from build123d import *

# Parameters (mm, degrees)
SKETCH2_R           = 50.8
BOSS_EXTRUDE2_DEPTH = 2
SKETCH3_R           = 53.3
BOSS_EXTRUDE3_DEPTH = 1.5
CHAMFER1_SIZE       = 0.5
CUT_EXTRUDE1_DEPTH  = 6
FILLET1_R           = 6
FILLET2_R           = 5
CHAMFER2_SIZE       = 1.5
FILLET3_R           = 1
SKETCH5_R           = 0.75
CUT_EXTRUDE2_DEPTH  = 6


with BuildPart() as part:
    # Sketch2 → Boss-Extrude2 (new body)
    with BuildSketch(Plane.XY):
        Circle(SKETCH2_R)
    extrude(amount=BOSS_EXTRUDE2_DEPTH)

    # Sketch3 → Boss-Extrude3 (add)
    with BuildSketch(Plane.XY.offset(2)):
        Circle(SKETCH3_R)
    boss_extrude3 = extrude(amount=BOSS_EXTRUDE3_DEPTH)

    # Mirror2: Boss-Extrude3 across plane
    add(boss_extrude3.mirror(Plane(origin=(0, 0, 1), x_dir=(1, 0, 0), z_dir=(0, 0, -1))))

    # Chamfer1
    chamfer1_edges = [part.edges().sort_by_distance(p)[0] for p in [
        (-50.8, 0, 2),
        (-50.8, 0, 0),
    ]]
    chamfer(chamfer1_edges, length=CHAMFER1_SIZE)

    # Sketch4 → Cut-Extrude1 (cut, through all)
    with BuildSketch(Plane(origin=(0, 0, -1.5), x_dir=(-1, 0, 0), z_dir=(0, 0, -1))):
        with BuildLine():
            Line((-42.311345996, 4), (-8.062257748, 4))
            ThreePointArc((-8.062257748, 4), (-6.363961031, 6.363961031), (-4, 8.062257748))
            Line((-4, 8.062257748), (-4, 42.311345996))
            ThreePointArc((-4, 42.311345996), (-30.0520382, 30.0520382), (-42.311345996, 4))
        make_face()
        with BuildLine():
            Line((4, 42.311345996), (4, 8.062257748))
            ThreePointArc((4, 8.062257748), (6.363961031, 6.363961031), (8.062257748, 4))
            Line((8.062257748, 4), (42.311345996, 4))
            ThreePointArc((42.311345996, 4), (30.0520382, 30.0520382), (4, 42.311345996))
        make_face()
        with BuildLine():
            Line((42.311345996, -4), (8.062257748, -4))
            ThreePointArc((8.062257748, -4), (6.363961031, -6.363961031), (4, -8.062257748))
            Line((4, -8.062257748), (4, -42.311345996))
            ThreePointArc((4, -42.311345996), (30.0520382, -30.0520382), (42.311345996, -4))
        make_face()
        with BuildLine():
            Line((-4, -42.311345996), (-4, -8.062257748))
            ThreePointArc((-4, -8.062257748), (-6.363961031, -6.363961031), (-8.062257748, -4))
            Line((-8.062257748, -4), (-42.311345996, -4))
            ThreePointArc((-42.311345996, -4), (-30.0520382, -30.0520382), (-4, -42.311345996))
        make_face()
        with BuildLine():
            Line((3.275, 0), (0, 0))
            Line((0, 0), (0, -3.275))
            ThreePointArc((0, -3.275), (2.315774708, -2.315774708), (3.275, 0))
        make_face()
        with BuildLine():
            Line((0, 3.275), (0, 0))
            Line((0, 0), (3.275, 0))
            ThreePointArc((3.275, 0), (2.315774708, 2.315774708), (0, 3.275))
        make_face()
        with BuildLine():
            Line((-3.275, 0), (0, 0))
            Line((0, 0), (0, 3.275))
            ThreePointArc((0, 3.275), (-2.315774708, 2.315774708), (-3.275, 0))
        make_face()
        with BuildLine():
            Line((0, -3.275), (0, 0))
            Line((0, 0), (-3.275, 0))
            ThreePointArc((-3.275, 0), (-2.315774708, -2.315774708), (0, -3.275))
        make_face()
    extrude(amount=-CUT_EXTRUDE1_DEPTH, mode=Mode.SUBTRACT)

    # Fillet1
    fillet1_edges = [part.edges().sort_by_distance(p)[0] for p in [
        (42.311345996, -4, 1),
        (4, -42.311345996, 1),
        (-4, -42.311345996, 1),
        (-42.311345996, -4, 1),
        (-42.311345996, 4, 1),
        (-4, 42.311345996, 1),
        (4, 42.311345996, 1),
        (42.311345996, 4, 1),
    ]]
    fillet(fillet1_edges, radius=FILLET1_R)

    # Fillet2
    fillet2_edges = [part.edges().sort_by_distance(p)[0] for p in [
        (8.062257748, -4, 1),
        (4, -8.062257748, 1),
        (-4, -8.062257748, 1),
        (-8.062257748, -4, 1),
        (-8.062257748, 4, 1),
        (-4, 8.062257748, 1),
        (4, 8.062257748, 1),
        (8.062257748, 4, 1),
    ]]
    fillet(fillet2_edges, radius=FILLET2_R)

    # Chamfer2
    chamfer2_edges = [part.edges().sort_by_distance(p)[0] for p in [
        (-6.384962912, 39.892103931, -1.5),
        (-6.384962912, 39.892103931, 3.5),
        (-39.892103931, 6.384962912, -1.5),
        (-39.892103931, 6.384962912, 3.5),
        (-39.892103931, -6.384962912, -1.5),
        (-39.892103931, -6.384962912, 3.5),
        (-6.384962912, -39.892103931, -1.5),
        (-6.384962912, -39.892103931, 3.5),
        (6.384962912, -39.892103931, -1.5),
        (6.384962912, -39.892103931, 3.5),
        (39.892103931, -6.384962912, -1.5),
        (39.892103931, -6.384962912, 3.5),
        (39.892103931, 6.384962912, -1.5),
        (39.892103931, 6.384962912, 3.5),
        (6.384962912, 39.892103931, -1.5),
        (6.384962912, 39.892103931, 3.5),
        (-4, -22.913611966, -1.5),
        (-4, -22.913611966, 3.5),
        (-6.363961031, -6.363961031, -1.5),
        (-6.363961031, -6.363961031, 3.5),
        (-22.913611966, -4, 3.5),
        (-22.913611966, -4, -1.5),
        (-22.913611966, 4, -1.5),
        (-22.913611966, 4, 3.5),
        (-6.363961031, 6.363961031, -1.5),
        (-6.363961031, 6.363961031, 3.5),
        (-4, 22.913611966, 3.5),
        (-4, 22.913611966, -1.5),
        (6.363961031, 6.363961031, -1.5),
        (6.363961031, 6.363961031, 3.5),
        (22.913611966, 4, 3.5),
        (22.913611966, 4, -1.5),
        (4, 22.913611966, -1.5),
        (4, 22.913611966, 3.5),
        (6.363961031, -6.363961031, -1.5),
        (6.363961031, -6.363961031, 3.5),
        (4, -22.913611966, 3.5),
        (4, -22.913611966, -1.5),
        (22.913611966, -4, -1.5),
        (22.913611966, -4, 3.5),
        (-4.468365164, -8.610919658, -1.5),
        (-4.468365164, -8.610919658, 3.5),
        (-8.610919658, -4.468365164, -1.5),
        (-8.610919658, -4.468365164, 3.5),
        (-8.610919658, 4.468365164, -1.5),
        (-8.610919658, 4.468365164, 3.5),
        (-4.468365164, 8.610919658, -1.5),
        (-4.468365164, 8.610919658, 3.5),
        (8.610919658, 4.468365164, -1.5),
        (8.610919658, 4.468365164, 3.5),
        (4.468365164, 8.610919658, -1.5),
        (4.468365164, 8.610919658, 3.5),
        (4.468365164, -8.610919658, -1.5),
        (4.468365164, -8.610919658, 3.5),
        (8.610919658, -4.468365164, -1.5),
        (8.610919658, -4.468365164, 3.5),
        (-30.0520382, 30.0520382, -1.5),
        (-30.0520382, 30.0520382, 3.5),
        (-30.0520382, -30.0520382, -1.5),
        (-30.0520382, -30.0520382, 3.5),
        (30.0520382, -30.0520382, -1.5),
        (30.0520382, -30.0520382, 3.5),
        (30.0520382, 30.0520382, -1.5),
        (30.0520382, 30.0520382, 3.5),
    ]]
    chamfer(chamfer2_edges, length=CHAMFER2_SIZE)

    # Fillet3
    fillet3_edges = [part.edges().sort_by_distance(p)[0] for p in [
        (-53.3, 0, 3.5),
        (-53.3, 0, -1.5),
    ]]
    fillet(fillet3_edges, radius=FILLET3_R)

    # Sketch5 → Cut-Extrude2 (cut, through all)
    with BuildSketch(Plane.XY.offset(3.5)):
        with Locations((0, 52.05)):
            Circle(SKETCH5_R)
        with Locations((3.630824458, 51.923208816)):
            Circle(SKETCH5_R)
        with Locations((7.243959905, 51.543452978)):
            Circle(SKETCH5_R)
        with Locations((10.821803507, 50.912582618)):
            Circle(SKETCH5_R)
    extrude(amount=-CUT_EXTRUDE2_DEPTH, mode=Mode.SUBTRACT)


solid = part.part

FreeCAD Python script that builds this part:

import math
import FreeCAD as App
import Part
import Sketcher
from FreeCAD import Vector


def edges_at(feature, points):
    """Names of the edges that pass closest to the given points."""
    edges = feature.Shape.Edges
    near = lambda p: min(range(len(edges)), key=lambda i: edges[i].distToShape(Part.Vertex(*p))[0])
    return sorted({f"Edge{near(p) + 1}" for p in points})

doc = App.newDocument("Part")
body = doc.addObject("PartDesign::Body", "Body")

# Sketch on XY plane
sketch1 = doc.addObject("Sketcher::SketchObject", "Sketch")
body.addObject(sketch1)
sketch1.AttachmentSupport = (doc.XY_Plane, [""])
sketch1.MapMode = "FlatFace"
sketch1.addGeometry(Part.Circle(Vector(0, 0, 0), Vector(0, 0, 1), 51), False)
sketch1.addConstraint([
    Sketcher.Constraint("Coincident", 0, 3, -1, 1),
    Sketcher.Constraint("Diameter", 0, 101.6),
])
pad1 = doc.addObject("PartDesign::Pad", "Pad")
body.addObject(pad1)
pad1.Profile = sketch1
pad1.Length = 2

# Sketch on XY plane
sketch2 = doc.addObject("Sketcher::SketchObject", "Sketch001")
body.addObject(sketch2)
sketch2.AttachmentSupport = (doc.XY_Plane, [""])
sketch2.MapMode = "FlatFace"
sketch2.AttachmentOffset = App.Placement(Vector(0, 0, 2), App.Rotation())
sketch2.addGeometry(Part.Circle(Vector(0, 0, 0), Vector(0, 0, 1), 53), False)
sketch2.addConstraint([
    Sketcher.Constraint("Coincident", 0, 3, -1, 1),
    Sketcher.Constraint("Diameter", 0, 106.6),
])
pad2 = doc.addObject("PartDesign::Pad", "Pad001")
body.addObject(pad2)
pad2.Profile = sketch2
pad2.Length = 1.5
doc.recompute()

datumplane = doc.addObject("PartDesign::Plane", "DatumPlane")
body.addObject(datumplane)
datumplane.AttachmentSupport = (doc.XY_Plane, [""])
datumplane.MapMode = "FlatFace"
datumplane.AttachmentOffset = App.Placement(Vector(0, 0, 1), App.Rotation())
mirrored = doc.addObject("PartDesign::Mirrored", "Mirrored")
body.addObject(mirrored)
mirrored.Originals = [pad2]
mirrored.MirrorPlane = (datumplane, [""])
body.Tip = mirrored
doc.recompute()

chamfer = doc.addObject("PartDesign::Chamfer", "Chamfer")
body.addObject(chamfer)
chamfer.Base = (mirrored, edges_at(mirrored, [(-50.8, 0, 2), (-50.8, 0, 0)]))
chamfer.Size = 0.5

# Sketch on XY plane
sketch3 = doc.addObject("Sketcher::SketchObject", "Sketch002")
body.addObject(sketch3)
sketch3.AttachmentSupport = (doc.XY_Plane, [""])
sketch3.MapMode = "FlatFace"
sketch3.AttachmentOffset = App.Placement(Vector(0, 0, -1.5), App.Rotation())
sketch3.addGeometry([
    Part.LineSegment(Vector(42.3, 4, 0), Vector(8.1, 4, 0)),  # 0
    Part.ArcOfCircle(Part.Circle(Vector(0, 0, 0), Vector(0, 0, 1), 9), math.radians(26), math.radians(64)),  # 1
    Part.LineSegment(Vector(4, 8.1, 0), Vector(4, 42.3, 0)),  # 2
    Part.ArcOfCircle(Part.Circle(Vector(0, 0, 0), Vector(0, 0, 1), 42.5), math.radians(5), math.radians(85)),  # 3
    Part.LineSegment(Vector(-4, 42.3, 0), Vector(-4, 8.1, 0)),  # 4
    Part.ArcOfCircle(Part.Circle(Vector(0, 0, 0), Vector(0, 0, 1), 9), math.radians(116), math.radians(154)),  # 5
    Part.LineSegment(Vector(-8.1, 4, 0), Vector(-42.3, 4, 0)),  # 6
    Part.ArcOfCircle(Part.Circle(Vector(0, 0, 0), Vector(0, 0, 1), 42.5), math.radians(95), math.radians(175)),  # 7
    Part.LineSegment(Vector(-42.3, -4, 0), Vector(-8.1, -4, 0)),  # 8
    Part.ArcOfCircle(Part.Circle(Vector(0, 0, 0), Vector(0, 0, 1), 9), math.radians(-154), math.radians(-116)),  # 9
    Part.LineSegment(Vector(-4, -8.1, 0), Vector(-4, -42.3, 0)),  # 10
    Part.ArcOfCircle(Part.Circle(Vector(0, 0, 0), Vector(0, 0, 1), 42.5), math.radians(-175), math.radians(-95)),  # 11
    Part.LineSegment(Vector(4, -42.3, 0), Vector(4, -8.1, 0)),  # 12
    Part.ArcOfCircle(Part.Circle(Vector(0, 0, 0), Vector(0, 0, 1), 9), math.radians(-64), math.radians(-26)),  # 13
    Part.LineSegment(Vector(8.1, -4, 0), Vector(42.3, -4, 0)),  # 14
    Part.ArcOfCircle(Part.Circle(Vector(0, 0, 0), Vector(0, 0, 1), 42.5), math.radians(-85), math.radians(-5)),  # 15
    Part.ArcOfCircle(Part.Circle(Vector(0, 0, 0), Vector(0, 0, 1), 3.3), math.radians(-180), math.radians(-90)),  # 16
    Part.ArcOfCircle(Part.Circle(Vector(0, 0, 0), Vector(0, 0, 1), 3.3), math.radians(90), math.radians(180)),  # 17
    Part.ArcOfCircle(Part.Circle(Vector(0, 0, 0), Vector(0, 0, 1), 3.3), math.radians(0), math.radians(90)),  # 18
    Part.ArcOfCircle(Part.Circle(Vector(0, 0, 0), Vector(0, 0, 1), 3.3), math.radians(-90), math.radians(0)),  # 19
], False)
sketch3.addConstraint([
    Sketcher.Constraint("Coincident", 0, 2, 1, 1),
    Sketcher.Constraint("Coincident", 1, 2, 2, 1),
    Sketcher.Constraint("Coincident", 2, 2, 3, 2),
    Sketcher.Constraint("Coincident", 3, 1, 0, 1),
    Sketcher.Constraint("Coincident", 4, 2, 5, 1),
    Sketcher.Constraint("Coincident", 5, 2, 6, 1),
    Sketcher.Constraint("Coincident", 6, 2, 7, 2),
    Sketcher.Constraint("Coincident", 7, 1, 4, 1),
    Sketcher.Constraint("Coincident", 8, 2, 9, 1),
    Sketcher.Constraint("Coincident", 9, 2, 10, 1),
    Sketcher.Constraint("Coincident", 10, 2, 11, 2),
    Sketcher.Constraint("Coincident", 11, 1, 8, 1),
    Sketcher.Constraint("Coincident", 12, 2, 13, 1),
    Sketcher.Constraint("Coincident", 13, 2, 14, 1),
    Sketcher.Constraint("Coincident", 14, 2, 15, 2),
    Sketcher.Constraint("Coincident", 15, 1, 12, 1),
    Sketcher.Constraint("Tangent", 16, 1, 17, 2),
    Sketcher.Constraint("Tangent", 17, 1, 18, 2),
    Sketcher.Constraint("Tangent", 18, 1, 19, 2),
    Sketcher.Constraint("Tangent", 19, 1, 16, 2),
    Sketcher.Constraint("Horizontal", 0),
    Sketcher.Constraint("Vertical", 2),
    Sketcher.Constraint("Vertical", 4),
    Sketcher.Constraint("Horizontal", 6),
    Sketcher.Constraint("Horizontal", 8),
    Sketcher.Constraint("Vertical", 10),
    Sketcher.Constraint("Vertical", 12),
    Sketcher.Constraint("Horizontal", 14),
    Sketcher.Constraint("Coincident", 1, 3, -1, 1),
    Sketcher.Constraint("Coincident", 3, 3, -1, 1),
    Sketcher.Constraint("Coincident", 5, 3, -1, 1),
    Sketcher.Constraint("Coincident", 7, 3, -1, 1),
    Sketcher.Constraint("Coincident", 9, 3, -1, 1),
    Sketcher.Constraint("Coincident", 11, 3, -1, 1),
    Sketcher.Constraint("Coincident", 13, 3, -1, 1),
    Sketcher.Constraint("Coincident", 15, 3, -1, 1),
    Sketcher.Constraint("Coincident", 16, 3, -1, 1),
    Sketcher.Constraint("Equal", 1, 5),
    Sketcher.Constraint("Equal", 3, 7),
    Sketcher.Constraint("Equal", 5, 9),
    Sketcher.Constraint("Equal", 7, 11),
    Sketcher.Constraint("Equal", 9, 13),
    Sketcher.Constraint("Equal", 11, 15),
    Sketcher.Constraint("Equal", 16, 17),
    Sketcher.Constraint("PointOnObject", 16, 1, -1),
    Sketcher.Constraint("PointOnObject", 17, 1, -2),
    Sketcher.Constraint("PointOnObject", 18, 1, -1),
    Sketcher.Constraint("PointOnObject", 19, 1, -2),
    Sketcher.Constraint("Horizontal", 1, 2, 4, 2),
    Sketcher.Constraint("Horizontal", 3, 1, 5, 2),
    Sketcher.Constraint("Horizontal", 9, 2, 12, 2),
    Sketcher.Constraint("Horizontal", 11, 1, 13, 2),
    Sketcher.Constraint("Vertical", 5, 2, 8, 2),
    Sketcher.Constraint("Vertical", 7, 1, 9, 2),
    Sketcher.Constraint("Equal", 14, 2),
    Sketcher.Constraint("Radius", 1, 9.0),
    Sketcher.Constraint("Radius", 3, 42.5),
    Sketcher.Constraint("DistanceY", -1, 1, 0, 2, 4.0),
    Sketcher.Constraint("Radius", 16, 3.275),
])
pocket1 = doc.addObject("PartDesign::Pocket", "Pocket")
body.addObject(pocket1)
pocket1.Profile = sketch3
pocket1.Type = "ThroughAll"
pocket1.Reversed = True
doc.recompute()

fillet = doc.addObject("PartDesign::Fillet", "Fillet")
body.addObject(fillet)
fillet.Base = (pocket1, edges_at(pocket1, [
    (42.311, -4, 1),
    (4, -42.311, 1),
    (-4, -42.311, 1),
    (-42.311, -4, 1),
    (-42.311, 4, 1),
    (-4, 42.311, 1),
    (4, 42.311, 1),
    (42.311, 4, 1),
]))
fillet.Radius = 6
doc.recompute()

fillet2 = doc.addObject("PartDesign::Fillet", "Fillet001")
body.addObject(fillet2)
fillet2.Base = (fillet, edges_at(fillet, [
    (8.062, -4, 1),
    (4, -8.062, 1),
    (-4, -8.062, 1),
    (-8.062, -4, 1),
    (-8.062, 4, 1),
    (-4, 8.062, 1),
    (4, 8.062, 1),
    (8.062, 4, 1),
]))
fillet2.Radius = 5
doc.recompute()

chamfer2 = doc.addObject("PartDesign::Chamfer", "Chamfer001")
body.addObject(chamfer2)
chamfer2.Base = (fillet2, edges_at(fillet2, [
    (-6.385, 39.892, -1.5),
    (-6.385, 39.892, 3.5),
    (-39.892, 6.385, -1.5),
    (-39.892, 6.385, 3.5),
    (-39.892, -6.385, -1.5),
    (-39.892, -6.385, 3.5),
    (-6.385, -39.892, -1.5),
    (-6.385, -39.892, 3.5),
    (6.385, -39.892, -1.5),
    (6.385, -39.892, 3.5),
    (39.892, -6.385, -1.5),
    (39.892, -6.385, 3.5),
    (39.892, 6.385, -1.5),
    (39.892, 6.385, 3.5),
    (6.385, 39.892, -1.5),
    (6.385, 39.892, 3.5),
    (-4, -22.914, -1.5),
    (-4, -22.914, 3.5),
    (-6.364, -6.364, -1.5),
    (-6.364, -6.364, 3.5),
    (-22.914, -4, 3.5),
    (-22.914, -4, -1.5),
    (-22.914, 4, -1.5),
    (-22.914, 4, 3.5),
    (-6.364, 6.364, -1.5),
    (-6.364, 6.364, 3.5),
    (-4, 22.914, 3.5),
    (-4, 22.914, -1.5),
    (6.364, 6.364, -1.5),
    (6.364, 6.364, 3.5),
    (22.914, 4, 3.5),
    (22.914, 4, -1.5),
    (4, 22.914, -1.5),
    (4, 22.914, 3.5),
    (6.364, -6.364, -1.5),
    (6.364, -6.364, 3.5),
    (4, -22.914, 3.5),
    (4, -22.914, -1.5),
    (22.914, -4, -1.5),
    (22.914, -4, 3.5),
    (-4.468, -8.611, -1.5),
    (-4.468, -8.611, 3.5),
    (-8.611, -4.468, -1.5),
    (-8.611, -4.468, 3.5),
    (-8.611, 4.468, -1.5),
    (-8.611, 4.468, 3.5),
    (-4.468, 8.611, -1.5),
    (-4.468, 8.611, 3.5),
    (8.611, 4.468, -1.5),
    (8.611, 4.468, 3.5),
    (4.468, 8.611, -1.5),
    (4.468, 8.611, 3.5),
    (4.468, -8.611, -1.5),
    (4.468, -8.611, 3.5),
    (8.611, -4.468, -1.5),
    (8.611, -4.468, 3.5),
    (-30.052, 30.052, -1.5),
    (-30.052, 30.052, 3.5),
    (-30.052, -30.052, -1.5),
    (-30.052, -30.052, 3.5),
    (30.052, -30.052, -1.5),
    (30.052, -30.052, 3.5),
    (30.052, 30.052, -1.5),
    (30.052, 30.052, 3.5),
]))
chamfer2.Size = 1.5
doc.recompute()

fillet3 = doc.addObject("PartDesign::Fillet", "Fillet002")
body.addObject(fillet3)
fillet3.Base = (chamfer2, edges_at(chamfer2, [(-53.3, 0, 3.5), (-53.3, 0, -1.5)]))
fillet3.Radius = 1

# Sketch on XY plane
sketch4 = doc.addObject("Sketcher::SketchObject", "Sketch003")
body.addObject(sketch4)
sketch4.AttachmentSupport = (doc.XY_Plane, [""])
sketch4.MapMode = "FlatFace"
sketch4.AttachmentOffset = App.Placement(Vector(0, 0, 3.5), App.Rotation())
sketch4.addGeometry([
    Part.Circle(Vector(0, 52, 0), Vector(0, 0, 1), 0.8),
    Part.Circle(Vector(3.6, 51.9, 0), Vector(0, 0, 1), 0.8),
    Part.Circle(Vector(7.2, 51.5, 0), Vector(0, 0, 1), 0.8),
    Part.Circle(Vector(10.8, 50.9, 0), Vector(0, 0, 1), 0.8),
], False)
sketch4.addConstraint([
    Sketcher.Constraint("Equal", 0, 1),
    Sketcher.Constraint("Equal", 1, 2),
    Sketcher.Constraint("Equal", 2, 3),
    Sketcher.Constraint("PointOnObject", 0, 3, -2),
    Sketcher.Constraint("Diameter", 0, 1.5),
    Sketcher.Constraint("DistanceY", -1, 1, 0, 3, 52.05),
    Sketcher.Constraint("DistanceY", -1, 1, 1, 3, 51.923209),
    Sketcher.Constraint("DistanceX", -1, 1, 2, 3, 7.24396),
    Sketcher.Constraint("DistanceY", 3, 3, 2, 3, 0.63087),
    Sketcher.Constraint("DistanceX", 1, 3, 3, 3, 7.190979),
    Sketcher.Constraint("DistanceX", -1, 1, 1, 3, 3.630824),
    Sketcher.Constraint("DistanceY", -1, 1, 2, 3, 51.543453),
])
pocket2 = doc.addObject("PartDesign::Pocket", "Pocket001")
body.addObject(pocket2)
pocket2.Profile = sketch4
pocket2.Type = "ThroughAll"

doc.recompute()
